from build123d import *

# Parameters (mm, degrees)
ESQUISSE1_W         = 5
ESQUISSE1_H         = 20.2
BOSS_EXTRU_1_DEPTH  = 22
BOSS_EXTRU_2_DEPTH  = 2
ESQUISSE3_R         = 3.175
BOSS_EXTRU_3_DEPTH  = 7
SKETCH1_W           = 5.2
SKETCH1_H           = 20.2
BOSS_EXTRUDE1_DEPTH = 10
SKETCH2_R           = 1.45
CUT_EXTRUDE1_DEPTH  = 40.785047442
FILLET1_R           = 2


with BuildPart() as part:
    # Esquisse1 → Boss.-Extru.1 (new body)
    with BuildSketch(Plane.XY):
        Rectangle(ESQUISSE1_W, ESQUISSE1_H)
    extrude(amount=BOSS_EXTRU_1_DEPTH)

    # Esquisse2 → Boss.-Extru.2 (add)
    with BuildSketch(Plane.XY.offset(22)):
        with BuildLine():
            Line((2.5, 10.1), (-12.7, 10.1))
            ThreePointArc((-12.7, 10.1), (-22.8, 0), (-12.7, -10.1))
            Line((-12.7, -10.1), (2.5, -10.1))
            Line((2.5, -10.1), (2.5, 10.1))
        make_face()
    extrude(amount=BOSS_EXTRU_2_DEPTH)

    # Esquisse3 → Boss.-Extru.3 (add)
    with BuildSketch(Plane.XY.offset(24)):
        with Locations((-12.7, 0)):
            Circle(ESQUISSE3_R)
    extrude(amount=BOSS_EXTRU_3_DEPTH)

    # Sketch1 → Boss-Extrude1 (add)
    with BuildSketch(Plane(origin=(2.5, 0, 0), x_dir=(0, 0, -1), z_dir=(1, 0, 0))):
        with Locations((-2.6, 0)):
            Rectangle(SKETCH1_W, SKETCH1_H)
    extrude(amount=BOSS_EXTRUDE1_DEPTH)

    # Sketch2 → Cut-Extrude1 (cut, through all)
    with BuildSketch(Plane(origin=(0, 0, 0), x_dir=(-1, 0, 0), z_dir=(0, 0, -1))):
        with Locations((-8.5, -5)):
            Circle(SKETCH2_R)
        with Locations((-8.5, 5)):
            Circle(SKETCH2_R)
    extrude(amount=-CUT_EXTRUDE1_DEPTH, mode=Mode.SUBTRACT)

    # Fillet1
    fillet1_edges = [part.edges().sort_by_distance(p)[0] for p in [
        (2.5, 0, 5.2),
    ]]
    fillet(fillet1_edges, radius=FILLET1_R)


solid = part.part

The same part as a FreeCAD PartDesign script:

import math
import FreeCAD as App
import Part
import Sketcher
Q = App.Units.Quantity


def edges_at(feature, points):
    """Names of the edges that pass closest to the given points."""
    edges = feature.Shape.Edges
    near = lambda p: min(range(len(edges)), key=lambda i: edges[i].distToShape(Part.Vertex(*p))[0])
    return sorted({f"Edge{near(p) + 1}" for p in points})

doc = App.newDocument("Part")
body = doc.addObject("PartDesign::Body", "Body")

# Sketch on XY plane
sketch1 = doc.addObject("Sketcher::SketchObject", "Sketch")
body.addObject(sketch1)
sketch1.AttachmentSupport = (doc.XY_Plane, [""])
sketch1.MapMode = "FlatFace"
sketch1.addGeometry(Part.LineSegment(App.Vector(-2, 10, 0), App.Vector(-2, -10, 0)), False)
sketch1.addGeometry(Part.LineSegment(App.Vector(-2, -10, 0), App.Vector(2, -10, 0)), False)
sketch1.addGeometry(Part.LineSegment(App.Vector(2, -10, 0), App.Vector(2, 10, 0)), False)
sketch1.addGeometry(Part.LineSegment(App.Vector(2, 10, 0), App.Vector(-2, 10, 0)), False)
sketch1.addConstraint(Sketcher.Constraint("Coincident", 0, 2, 1, 1))
sketch1.addConstraint(Sketcher.Constraint("Coincident", 1, 2, 2, 1))
sketch1.addConstraint(Sketcher.Constraint("Coincident", 2, 2, 3, 1))
sketch1.addConstraint(Sketcher.Constraint("Coincident", 3, 2, 0, 1))
sketch1.addConstraint(Sketcher.Constraint("Vertical", 0))
sketch1.addConstraint(Sketcher.Constraint("Horizontal", 1))
sketch1.addConstraint(Sketcher.Constraint("Vertical", 2))
sketch1.addConstraint(Sketcher.Constraint("Horizontal", 3))
sketch1.addConstraint(Sketcher.Constraint("Symmetric", 0, 2, 2, 2, -1, 1))
sketch1.addConstraint(Sketcher.Constraint("DistanceX", 1, 1, 1, 2, Q("5 mm")))
sketch1.addConstraint(Sketcher.Constraint("DistanceY", 0, 2, 0, 1, Q("20.2 mm")))
pad1 = doc.addObject("PartDesign::Pad", "Pad")
body.addObject(pad1)
pad1.Profile = sketch1
pad1.Length = 22

# Sketch on XY plane
sketch2 = doc.addObject("Sketcher::SketchObject", "Sketch001")
body.addObject(sketch2)
sketch2.AttachmentSupport = (doc.XY_Plane, [""])
sketch2.MapMode = "FlatFace"
sketch2.AttachmentOffset = App.Placement(App.Vector(0, 0, 22), App.Rotation())
sketch2.addGeometry(Part.LineSegment(App.Vector(2, 10, 0), App.Vector(-13, 10, 0)), False)
sketch2.addGeometry(Part.ArcOfCircle(Part.Circle(App.Vector(-13, 0, 0), App.Vector(0, 0, 1), 10), math.radians(90), math.radians(270)), False)
sketch2.addGeometry(Part.LineSegment(App.Vector(-13, -10, 0), App.Vector(2, -10, 0)), False)
sketch2.addGeometry(Part.LineSegment(App.Vector(2, -10, 0), App.Vector(2, 10, 0)), False)
sketch2.addConstraint(Sketcher.Constraint("Tangent", 0, 2, 1, 1))
sketch2.addConstraint(Sketcher.Constraint("Tangent", 1, 2, 2, 1))
sketch2.addConstraint(Sketcher.Constraint("Coincident", 2, 2, 3, 1))
sketch2.addConstraint(Sketcher.Constraint("Coincident", 3, 2, 0, 1))
sketch2.addConstraint(Sketcher.Constraint("Horizontal", 0))
sketch2.addConstraint(Sketcher.Constraint("Horizontal", 2))
sketch2.addConstraint(Sketcher.Constraint("Vertical", 3))
sketch2.addConstraint(Sketcher.Constraint("PointOnObject", 1, 3, -1))
sketch2.addConstraint(Sketcher.Constraint("Radius", 1, Q("10.1 mm")))
sketch2.addConstraint(Sketcher.Constraint("DistanceX", 0, 2, 0, 1, Q("15.2 mm")))
sketch2.addConstraint(Sketcher.Constraint("DistanceX", 1, 3, -1, 1, Q("12.7 mm")))
pad2 = doc.addObject("PartDesign::Pad", "Pad001")
body.addObject(pad2)
pad2.Profile = sketch2
pad2.Length = 2

# Sketch on XY plane
sketch3 = doc.addObject("Sketcher::SketchObject", "Sketch002")
body.addObject(sketch3)
sketch3.AttachmentSupport = (doc.XY_Plane, [""])
sketch3.MapMode = "FlatFace"
sketch3.AttachmentOffset = App.Placement(App.Vector(0, 0, 24), App.Rotation())
sketch3.addGeometry(Part.Circle(App.Vector(-12.7, 0, 0), App.Vector(0, 0, 1), 3.2), False)
sketch3.addConstraint(Sketcher.Constraint("PointOnObject", 0, 3, -1))
sketch3.addConstraint(Sketcher.Constraint("Diameter", 0, Q("6.35 mm")))
sketch3.addConstraint(Sketcher.Constraint("DistanceX", 0, 3, -1, 1, Q("12.7 mm")))
pad3 = doc.addObject("PartDesign::Pad", "Pad002")
body.addObject(pad3)
pad3.Profile = sketch3
pad3.Length = 7

# Sketch on YZ plane
sketch4 = doc.addObject("Sketcher::SketchObject", "Sketch003")
body.addObject(sketch4)
sketch4.AttachmentSupport = (doc.YZ_Plane, [""])
sketch4.MapMode = "FlatFace"
sketch4.AttachmentOffset = App.Placement(App.Vector(0, 0, 2.5), App.Rotation())
sketch4.addGeometry(Part.LineSegment(App.Vector(10, 5, 0), App.Vector(-10, 5, 0)), False)
sketch4.addGeometry(Part.LineSegment(App.Vector(-10, 5, 0), App.Vector(-10, 0, 0)), False)
sketch4.addGeometry(Part.LineSegment(App.Vector(-10, 0, 0), App.Vector(10, 0, 0)), False)
sketch4.addGeometry(Part.LineSegment(App.Vector(10, 0, 0), App.Vector(10, 5, 0)), False)
sketch4.addConstraint(Sketcher.Constraint("Coincident", 0, 2, 1, 1))
sketch4.addConstraint(Sketcher.Constraint("Coincident", 1, 2, 2, 1))
sketch4.addConstraint(Sketcher.Constraint("Coincident", 2, 2, 3, 1))
sketch4.addConstraint(Sketcher.Constraint("Coincident", 3, 2, 0, 1))
sketch4.addConstraint(Sketcher.Constraint("Horizontal", 0))
sketch4.addConstraint(Sketcher.Constraint("Vertical", 1))
sketch4.addConstraint(Sketcher.Constraint("Horizontal", 2))
sketch4.addConstraint(Sketcher.Constraint("Vertical", 3))
sketch4.addConstraint(Sketcher.Constraint("Symmetric", 1, 2, 2, 2, -1, 1))
sketch4.addConstraint(Sketcher.Constraint("DistanceX", 0, 2, 0, 1, Q("20.2 mm")))
sketch4.addConstraint(Sketcher.Constraint("DistanceY", 1, 2, 1, 1, Q("5.2 mm")))
pad4 = doc.addObject("PartDesign::Pad", "Pad003")
body.addObject(pad4)
pad4.Profile = sketch4
pad4.Length = 10

# Sketch on XY plane
sketch5 = doc.addObject("Sketcher::SketchObject", "Sketch004")
body.addObject(sketch5)
sketch5.AttachmentSupport = (doc.XY_Plane, [""])
sketch5.MapMode = "FlatFace"
sketch5.addGeometry(Part.Circle(App.Vector(8.5, -5, 0), App.Vector(0, 0, 1), 1.4), False)
sketch5.addGeometry(Part.Circle(App.Vector(8.5, 5, 0), App.Vector(0, 0, 1), 1.4), False)
sketch5.addConstraint(Sketcher.Constraint("Equal", 0, 1))
sketch5.addConstraint(Sketcher.Constraint("Symmetric", 0, 3, 1, 3, -1))
sketch5.addConstraint(Sketcher.Constraint("Diameter", 0, Q("2.9 mm")))
sketch5.addConstraint(Sketcher.Constraint("DistanceY", 0, 3, -1, 1, Q("5 mm")))
sketch5.addConstraint(Sketcher.Constraint("DistanceX", -1, 1, 0, 3, Q("8.5 mm")))
pocket1 = doc.addObject("PartDesign::Pocket", "Pocket")
body.addObject(pocket1)
pocket1.Profile = sketch5
pocket1.Type = "ThroughAll"
pocket1.Reversed = True
doc.recompute()

fillet = doc.addObject("PartDesign::Fillet", "Fillet")
body.addObject(fillet)
fillet.Base = (pocket1, edges_at(pocket1, [(2.5, 0, 5.2)]))
fillet.Radius = 2

doc.recompute()
